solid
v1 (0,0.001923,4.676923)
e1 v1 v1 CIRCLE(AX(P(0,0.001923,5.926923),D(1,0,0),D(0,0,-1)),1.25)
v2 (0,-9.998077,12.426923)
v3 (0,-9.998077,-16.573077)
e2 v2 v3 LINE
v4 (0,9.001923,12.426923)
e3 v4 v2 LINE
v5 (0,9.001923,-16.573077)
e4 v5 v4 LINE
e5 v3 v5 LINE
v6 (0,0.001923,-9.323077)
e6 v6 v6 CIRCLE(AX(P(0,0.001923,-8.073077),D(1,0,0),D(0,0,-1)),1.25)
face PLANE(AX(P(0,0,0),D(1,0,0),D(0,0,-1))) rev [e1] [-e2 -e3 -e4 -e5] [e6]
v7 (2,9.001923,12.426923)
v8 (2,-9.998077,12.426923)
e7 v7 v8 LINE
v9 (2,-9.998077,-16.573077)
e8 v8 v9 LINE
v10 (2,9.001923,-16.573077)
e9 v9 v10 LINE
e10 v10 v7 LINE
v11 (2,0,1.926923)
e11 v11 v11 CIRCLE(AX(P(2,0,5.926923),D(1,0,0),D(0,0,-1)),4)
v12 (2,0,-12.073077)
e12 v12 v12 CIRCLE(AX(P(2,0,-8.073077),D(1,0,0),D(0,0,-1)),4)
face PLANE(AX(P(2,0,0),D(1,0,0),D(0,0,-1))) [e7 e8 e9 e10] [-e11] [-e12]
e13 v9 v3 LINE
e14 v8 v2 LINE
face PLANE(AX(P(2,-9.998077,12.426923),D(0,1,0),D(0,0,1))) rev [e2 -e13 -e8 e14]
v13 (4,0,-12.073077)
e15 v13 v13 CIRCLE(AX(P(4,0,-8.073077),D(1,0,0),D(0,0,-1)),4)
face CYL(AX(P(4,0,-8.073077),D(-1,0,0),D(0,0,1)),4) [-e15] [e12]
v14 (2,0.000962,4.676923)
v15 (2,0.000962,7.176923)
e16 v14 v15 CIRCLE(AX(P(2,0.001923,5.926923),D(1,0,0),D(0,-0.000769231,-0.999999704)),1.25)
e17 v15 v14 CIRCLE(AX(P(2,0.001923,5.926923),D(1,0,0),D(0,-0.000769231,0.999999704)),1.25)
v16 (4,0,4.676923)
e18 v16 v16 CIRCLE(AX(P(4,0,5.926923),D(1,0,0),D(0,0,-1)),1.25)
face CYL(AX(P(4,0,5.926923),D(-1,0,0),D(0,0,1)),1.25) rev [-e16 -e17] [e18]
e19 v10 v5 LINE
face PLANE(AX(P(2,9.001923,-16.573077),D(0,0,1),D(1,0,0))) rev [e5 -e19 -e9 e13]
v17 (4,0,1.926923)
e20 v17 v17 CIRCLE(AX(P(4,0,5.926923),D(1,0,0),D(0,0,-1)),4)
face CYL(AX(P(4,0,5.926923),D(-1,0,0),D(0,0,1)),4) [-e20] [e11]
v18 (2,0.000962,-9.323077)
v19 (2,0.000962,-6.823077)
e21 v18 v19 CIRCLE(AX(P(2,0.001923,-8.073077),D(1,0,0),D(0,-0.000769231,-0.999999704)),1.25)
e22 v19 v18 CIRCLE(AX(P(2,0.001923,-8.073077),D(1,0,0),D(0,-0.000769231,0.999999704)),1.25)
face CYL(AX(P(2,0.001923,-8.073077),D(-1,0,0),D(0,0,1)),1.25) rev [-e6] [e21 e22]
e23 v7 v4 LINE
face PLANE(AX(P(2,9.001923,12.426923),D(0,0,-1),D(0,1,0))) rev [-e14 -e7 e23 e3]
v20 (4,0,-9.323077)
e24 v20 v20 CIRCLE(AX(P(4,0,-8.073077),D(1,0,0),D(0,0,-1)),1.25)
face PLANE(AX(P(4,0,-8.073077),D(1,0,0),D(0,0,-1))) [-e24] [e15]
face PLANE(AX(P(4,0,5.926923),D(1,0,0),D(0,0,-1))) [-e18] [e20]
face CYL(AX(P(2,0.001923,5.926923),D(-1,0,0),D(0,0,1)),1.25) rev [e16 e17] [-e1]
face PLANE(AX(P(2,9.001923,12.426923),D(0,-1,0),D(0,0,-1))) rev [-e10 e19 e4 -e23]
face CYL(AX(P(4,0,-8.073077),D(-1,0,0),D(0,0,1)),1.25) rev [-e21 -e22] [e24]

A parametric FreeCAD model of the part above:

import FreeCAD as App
import Part
import Sketcher


def add_polygon(sketch, points):
    """Adds a closed chain of lines whose ends are joined by coincident constraints."""
    first, n = sketch.GeometryCount, len(points)
    for a, b in zip(points, points[1:] + points[:1]):
        sketch.addGeometry(Part.LineSegment(App.Vector(*a, 0), App.Vector(*b, 0)), False)
    for i in range(n):
        sketch.addConstraint(Sketcher.Constraint("Coincident", first + i, 2, first + (i + 1) % n, 1))

doc = App.newDocument("Part")
body = doc.addObject("PartDesign::Body", "Body")

# Sketch on YZ plane
sketch1 = body.newObject("Sketcher::SketchObject", "Sketch")
sketch1.AttachmentSupport = (doc.getObject("YZ_Plane"), [""])
sketch1.MapMode = "FlatFace"
add_polygon(sketch1, [(9.001923, 12.426923), (-9.998077, 12.426923), (-9.998077, -16.573077), (9.001923, -16.573077)])  # lines 0-3
sketch1.addGeometry(Part.Circle(App.Vector(0.001923, 5.926923, 0), App.Vector(0, 0, 1), 1.25), False)  # 4
sketch1.addGeometry(Part.Circle(App.Vector(0.001923, -8.073077, 0), App.Vector(0, 0, 1), 1.25), False)  # 5
sketch1.addConstraint(Sketcher.Constraint("Horizontal", 0))
sketch1.addConstraint(Sketcher.Constraint("Vertical", 1))
sketch1.addConstraint(Sketcher.Constraint("Horizontal", 2))
sketch1.addConstraint(Sketcher.Constraint("Vertical", 3))
sketch1.addConstraint(Sketcher.Constraint("Equal", 4, 5))
sketch1.addConstraint(Sketcher.Constraint("Vertical", 4, 3, 5, 3))
sketch1.addConstraint(Sketcher.Constraint("Diameter", 4, 2.5))
sketch1.addConstraint(Sketcher.Constraint("DistanceX", 0, 2, 0, 1, 19.0))
sketch1.addConstraint(Sketcher.Constraint("DistanceY", 1, 2, 1, 1, 29.0))
sketch1.addConstraint(Sketcher.Constraint("DistanceY", 5, 3, 4, 3, 14.0))
sketch1.addConstraint(Sketcher.Constraint("DistanceX", 0, 2, 4, 3, 10.0))
sketch1.addConstraint(Sketcher.Constraint("DistanceY", 4, 3, 0, 2, 6.5))
sketch1.addConstraint(Sketcher.Constraint("DistanceX", -1, 1, 4, 3, 0.001923))
sketch1.addConstraint(Sketcher.Constraint("DistanceY", -1, 1, 4, 3, 5.926923))
pad1 = body.newObject("PartDesign::Pad", "Pad")
pad1.Profile = sketch1
pad1.Length = 2

# Sketch on YZ plane
sketch2 = body.newObject("Sketcher::SketchObject", "Sketch001")
sketch2.AttachmentSupport = (doc.getObject("YZ_Plane"), [""])
sketch2.MapMode = "FlatFace"
sketch2.AttachmentOffset = App.Placement(App.Vector(0, 0, 2), App.Rotation())
sketch2.addGeometry(Part.Circle(App.Vector(0, -8.073077, 0), App.Vector(0, 0, 1), 4), False)
sketch2.addGeometry(Part.Circle(App.Vector(0, -8.073077, 0), App.Vector(0, 0, 1), 1.25), False)
sketch2.addGeometry(Part.Circle(App.Vector(0, 5.926923, 0), App.Vector(0, 0, 1), 4), False)
sketch2.addGeometry(Part.Circle(App.Vector(0, 5.926923, 0), App.Vector(0, 0, 1), 1.25), False)
sketch2.addConstraint(Sketcher.Constraint("Coincident", 1, 3, 0, 3))
sketch2.addConstraint(Sketcher.Constraint("Coincident", 3, 3, 2, 3))
sketch2.addConstraint(Sketcher.Constraint("Equal", 0, 2))
sketch2.addConstraint(Sketcher.Constraint("Equal", 1, 3))
sketch2.addConstraint(Sketcher.Constraint("PointOnObject", 0, 3, -2))
sketch2.addConstraint(Sketcher.Constraint("PointOnObject", 2, 3, -2))
sketch2.addConstraint(Sketcher.Constraint("Diameter", 0, 8.0))
sketch2.addConstraint(Sketcher.Constraint("Diameter", 1, 2.5))
sketch2.addConstraint(Sketcher.Constraint("DistanceY", 0, 3, 2, 3, 14.0))
sketch2.addConstraint(Sketcher.Constraint("DistanceY", 0, 3, -1, 1, 8.073077))
pad2 = body.newObject("PartDesign::Pad", "Pad001")
pad2.Profile = sketch2
pad2.Length = 2

doc.recompute()
